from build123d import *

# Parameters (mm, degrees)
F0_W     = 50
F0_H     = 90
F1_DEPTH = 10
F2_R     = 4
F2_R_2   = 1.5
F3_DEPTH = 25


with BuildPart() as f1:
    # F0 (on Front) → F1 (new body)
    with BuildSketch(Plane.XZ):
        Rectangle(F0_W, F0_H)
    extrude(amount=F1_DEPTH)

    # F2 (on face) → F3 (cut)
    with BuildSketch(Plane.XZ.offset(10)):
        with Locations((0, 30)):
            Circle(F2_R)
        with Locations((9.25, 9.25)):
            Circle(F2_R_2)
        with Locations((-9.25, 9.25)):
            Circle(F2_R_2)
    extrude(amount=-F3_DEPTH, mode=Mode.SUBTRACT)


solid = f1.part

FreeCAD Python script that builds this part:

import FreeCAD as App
import Part
import Sketcher

V = App.Vector
Q = App.Units.Quantity

doc = App.newDocument("Part")
body = doc.addObject("PartDesign::Body", "Body")

sketch1 = body.newObject("Sketcher::SketchObject", "Sketch")
sketch1.AttachmentSupport = (doc.getObject("XZ_Plane"), [""])
sketch1.MapMode = "FlatFace"
sketch1.addGeometry([
    Part.LineSegment(V(-25, 45, 0), V(-25, -45, 0)),
    Part.LineSegment(V(-25, -45, 0), V(25, -45, 0)),
    Part.LineSegment(V(25, -45, 0), V(25, 45, 0)),
    Part.LineSegment(V(25, 45, 0), V(-25, 45, 0)),
], False)
sketch1.addConstraint([
    Sketcher.Constraint("Coincident", 0, 2, 1, 1),
    Sketcher.Constraint("Coincident", 1, 2, 2, 1),
    Sketcher.Constraint("Coincident", 2, 2, 3, 1),
    Sketcher.Constraint("Coincident", 3, 2, 0, 1),
    Sketcher.Constraint("Vertical", 0),
    Sketcher.Constraint("Horizontal", 1),
    Sketcher.Constraint("Vertical", 2),
    Sketcher.Constraint("Horizontal", 3),
    Sketcher.Constraint("Symmetric", 0, 2, 2, 2, -1, 1),
    Sketcher.Constraint("DistanceX", 1, 1, 1, 2, Q("50 mm")),
    Sketcher.Constraint("DistanceY", 0, 2, 0, 1, Q("90 mm")),
])
pad1 = body.newObject("PartDesign::Pad", "Pad")
pad1.Profile = sketch1
pad1.Length = 10

sketch2 = body.newObject("Sketcher::SketchObject", "Sketch001")
sketch2.AttachmentSupport = (doc.getObject("XZ_Plane"), [""])
sketch2.MapMode = "FlatFace"
sketch2.AttachmentOffset = App.Placement(V(0, 0, 10), App.Rotation())
sketch2.addGeometry([
    Part.Circle(V(0, 30, 0), V(0, 0, 1), 4),
    Part.Circle(V(9.25, 9.25, 0), V(0, 0, 1), 1.5),
    Part.Circle(V(-9.25, 9.25, 0), V(0, 0, 1), 1.5),
], False)
sketch2.addConstraint([
    Sketcher.Constraint("Equal", 1, 2),
    Sketcher.Constraint("Symmetric", 1, 3, 2, 3, -2),
    Sketcher.Constraint("PointOnObject", 0, 3, -2),
    Sketcher.Constraint("Diameter", 0, Q("8 mm")),
    Sketcher.Constraint("Diameter", 1, Q("3 mm")),
    Sketcher.Constraint("DistanceY", -1, 1, 0, 3, Q("30 mm")),
    Sketcher.Constraint("DistanceX", 2, 3, 1, 3, Q("18.5 mm")),
    Sketcher.Constraint("DistanceY", -1, 1, 1, 3, Q("9.25 mm")),
])
pocket1 = body.newObject("PartDesign::Pocket", "Pocket")
pocket1.Profile = sketch2
pocket1.Length = 25

doc.recompute()
